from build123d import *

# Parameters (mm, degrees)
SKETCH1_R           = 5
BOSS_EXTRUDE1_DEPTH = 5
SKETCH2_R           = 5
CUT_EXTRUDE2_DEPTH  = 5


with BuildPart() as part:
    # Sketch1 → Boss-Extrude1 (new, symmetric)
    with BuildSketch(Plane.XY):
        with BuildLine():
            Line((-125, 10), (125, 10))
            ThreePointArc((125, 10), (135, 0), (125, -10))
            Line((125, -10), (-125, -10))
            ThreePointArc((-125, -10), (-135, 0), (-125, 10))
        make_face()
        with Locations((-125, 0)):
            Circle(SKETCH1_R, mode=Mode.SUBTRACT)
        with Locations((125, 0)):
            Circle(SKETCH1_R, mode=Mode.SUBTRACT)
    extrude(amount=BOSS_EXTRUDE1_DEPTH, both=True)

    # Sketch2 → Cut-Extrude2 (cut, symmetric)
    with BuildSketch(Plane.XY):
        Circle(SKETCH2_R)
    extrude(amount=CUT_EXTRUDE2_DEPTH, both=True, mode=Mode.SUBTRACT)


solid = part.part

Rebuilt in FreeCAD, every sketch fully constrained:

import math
import FreeCAD as App
import Part
import Sketcher

V = App.Vector

doc = App.newDocument("Part")
body = doc.addObject("PartDesign::Body", "Body")

# Sketch on XY plane
sketch1 = doc.addObject("Sketcher::SketchObject", "Sketch")
body.addObject(sketch1)
sketch1.AttachmentSupport = (doc.XY_Plane, [""])
sketch1.MapMode = "FlatFace"
sketch1.addGeometry([
    Part.LineSegment(V(125, 10, 0), V(-125, 10, 0)),  # 0
    Part.ArcOfCircle(Part.Circle(V(-125, 0, 0), V(0, 0, 1), 10), math.radians(90), math.radians(270)),  # 1
    Part.LineSegment(V(-125, -10, 0), V(125, -10, 0)),  # 2
    Part.ArcOfCircle(Part.Circle(V(125, 0, 0), V(0, 0, 1), 10), math.radians(-90), math.radians(90)),  # 3
    Part.Circle(V(125, 0, 0), V(0, 0, 1), 5),  # 4
    Part.Circle(V(-125, 0, 0), V(0, 0, 1), 5),  # 5
], False)
sketch1.addConstraint([
    Sketcher.Constraint("Tangent", 0, 2, 1, 1),
    Sketcher.Constraint("Tangent", 1, 2, 2, 1),
    Sketcher.Constraint("Tangent", 2, 2, 3, 1),
    Sketcher.Constraint("Tangent", 3, 2, 0, 1),
    Sketcher.Constraint("Horizontal", 0),
    Sketcher.Constraint("Horizontal", 2),
    Sketcher.Constraint("Coincident", 4, 3, 3, 3),
    Sketcher.Constraint("Coincident", 5, 3, 1, 3),
    Sketcher.Constraint("Equal", 4, 5),
    Sketcher.Constraint("Symmetric", 1, 3, 3, 3, -1, 1),
    Sketcher.Constraint("Diameter", 4, 10.0),
    Sketcher.Constraint("Radius", 1, 10.0),
    Sketcher.Constraint("DistanceX", 0, 2, 0, 1, 250.0),
])
pad1 = doc.addObject("PartDesign::Pad", "Pad")
body.addObject(pad1)
pad1.Profile = sketch1
pad1.Length = 10
pad1.Midplane = True

# Sketch on XY plane
sketch2 = doc.addObject("Sketcher::SketchObject", "Sketch001")
body.addObject(sketch2)
sketch2.AttachmentSupport = (doc.XY_Plane, [""])
sketch2.MapMode = "FlatFace"
sketch2.addGeometry(Part.Circle(V(0, 0, 0), V(0, 0, 1), 5), False)
sketch2.addConstraint([
    Sketcher.Constraint("Coincident", 0, 3, -1, 1),
    Sketcher.Constraint("Diameter", 0, 10.0),
])
pocket1 = doc.addObject("PartDesign::Pocket", "Pocket")
body.addObject(pocket1)
pocket1.Profile = sketch2
pocket1.Length = 10
pocket1.Midplane = True

doc.recompute()
